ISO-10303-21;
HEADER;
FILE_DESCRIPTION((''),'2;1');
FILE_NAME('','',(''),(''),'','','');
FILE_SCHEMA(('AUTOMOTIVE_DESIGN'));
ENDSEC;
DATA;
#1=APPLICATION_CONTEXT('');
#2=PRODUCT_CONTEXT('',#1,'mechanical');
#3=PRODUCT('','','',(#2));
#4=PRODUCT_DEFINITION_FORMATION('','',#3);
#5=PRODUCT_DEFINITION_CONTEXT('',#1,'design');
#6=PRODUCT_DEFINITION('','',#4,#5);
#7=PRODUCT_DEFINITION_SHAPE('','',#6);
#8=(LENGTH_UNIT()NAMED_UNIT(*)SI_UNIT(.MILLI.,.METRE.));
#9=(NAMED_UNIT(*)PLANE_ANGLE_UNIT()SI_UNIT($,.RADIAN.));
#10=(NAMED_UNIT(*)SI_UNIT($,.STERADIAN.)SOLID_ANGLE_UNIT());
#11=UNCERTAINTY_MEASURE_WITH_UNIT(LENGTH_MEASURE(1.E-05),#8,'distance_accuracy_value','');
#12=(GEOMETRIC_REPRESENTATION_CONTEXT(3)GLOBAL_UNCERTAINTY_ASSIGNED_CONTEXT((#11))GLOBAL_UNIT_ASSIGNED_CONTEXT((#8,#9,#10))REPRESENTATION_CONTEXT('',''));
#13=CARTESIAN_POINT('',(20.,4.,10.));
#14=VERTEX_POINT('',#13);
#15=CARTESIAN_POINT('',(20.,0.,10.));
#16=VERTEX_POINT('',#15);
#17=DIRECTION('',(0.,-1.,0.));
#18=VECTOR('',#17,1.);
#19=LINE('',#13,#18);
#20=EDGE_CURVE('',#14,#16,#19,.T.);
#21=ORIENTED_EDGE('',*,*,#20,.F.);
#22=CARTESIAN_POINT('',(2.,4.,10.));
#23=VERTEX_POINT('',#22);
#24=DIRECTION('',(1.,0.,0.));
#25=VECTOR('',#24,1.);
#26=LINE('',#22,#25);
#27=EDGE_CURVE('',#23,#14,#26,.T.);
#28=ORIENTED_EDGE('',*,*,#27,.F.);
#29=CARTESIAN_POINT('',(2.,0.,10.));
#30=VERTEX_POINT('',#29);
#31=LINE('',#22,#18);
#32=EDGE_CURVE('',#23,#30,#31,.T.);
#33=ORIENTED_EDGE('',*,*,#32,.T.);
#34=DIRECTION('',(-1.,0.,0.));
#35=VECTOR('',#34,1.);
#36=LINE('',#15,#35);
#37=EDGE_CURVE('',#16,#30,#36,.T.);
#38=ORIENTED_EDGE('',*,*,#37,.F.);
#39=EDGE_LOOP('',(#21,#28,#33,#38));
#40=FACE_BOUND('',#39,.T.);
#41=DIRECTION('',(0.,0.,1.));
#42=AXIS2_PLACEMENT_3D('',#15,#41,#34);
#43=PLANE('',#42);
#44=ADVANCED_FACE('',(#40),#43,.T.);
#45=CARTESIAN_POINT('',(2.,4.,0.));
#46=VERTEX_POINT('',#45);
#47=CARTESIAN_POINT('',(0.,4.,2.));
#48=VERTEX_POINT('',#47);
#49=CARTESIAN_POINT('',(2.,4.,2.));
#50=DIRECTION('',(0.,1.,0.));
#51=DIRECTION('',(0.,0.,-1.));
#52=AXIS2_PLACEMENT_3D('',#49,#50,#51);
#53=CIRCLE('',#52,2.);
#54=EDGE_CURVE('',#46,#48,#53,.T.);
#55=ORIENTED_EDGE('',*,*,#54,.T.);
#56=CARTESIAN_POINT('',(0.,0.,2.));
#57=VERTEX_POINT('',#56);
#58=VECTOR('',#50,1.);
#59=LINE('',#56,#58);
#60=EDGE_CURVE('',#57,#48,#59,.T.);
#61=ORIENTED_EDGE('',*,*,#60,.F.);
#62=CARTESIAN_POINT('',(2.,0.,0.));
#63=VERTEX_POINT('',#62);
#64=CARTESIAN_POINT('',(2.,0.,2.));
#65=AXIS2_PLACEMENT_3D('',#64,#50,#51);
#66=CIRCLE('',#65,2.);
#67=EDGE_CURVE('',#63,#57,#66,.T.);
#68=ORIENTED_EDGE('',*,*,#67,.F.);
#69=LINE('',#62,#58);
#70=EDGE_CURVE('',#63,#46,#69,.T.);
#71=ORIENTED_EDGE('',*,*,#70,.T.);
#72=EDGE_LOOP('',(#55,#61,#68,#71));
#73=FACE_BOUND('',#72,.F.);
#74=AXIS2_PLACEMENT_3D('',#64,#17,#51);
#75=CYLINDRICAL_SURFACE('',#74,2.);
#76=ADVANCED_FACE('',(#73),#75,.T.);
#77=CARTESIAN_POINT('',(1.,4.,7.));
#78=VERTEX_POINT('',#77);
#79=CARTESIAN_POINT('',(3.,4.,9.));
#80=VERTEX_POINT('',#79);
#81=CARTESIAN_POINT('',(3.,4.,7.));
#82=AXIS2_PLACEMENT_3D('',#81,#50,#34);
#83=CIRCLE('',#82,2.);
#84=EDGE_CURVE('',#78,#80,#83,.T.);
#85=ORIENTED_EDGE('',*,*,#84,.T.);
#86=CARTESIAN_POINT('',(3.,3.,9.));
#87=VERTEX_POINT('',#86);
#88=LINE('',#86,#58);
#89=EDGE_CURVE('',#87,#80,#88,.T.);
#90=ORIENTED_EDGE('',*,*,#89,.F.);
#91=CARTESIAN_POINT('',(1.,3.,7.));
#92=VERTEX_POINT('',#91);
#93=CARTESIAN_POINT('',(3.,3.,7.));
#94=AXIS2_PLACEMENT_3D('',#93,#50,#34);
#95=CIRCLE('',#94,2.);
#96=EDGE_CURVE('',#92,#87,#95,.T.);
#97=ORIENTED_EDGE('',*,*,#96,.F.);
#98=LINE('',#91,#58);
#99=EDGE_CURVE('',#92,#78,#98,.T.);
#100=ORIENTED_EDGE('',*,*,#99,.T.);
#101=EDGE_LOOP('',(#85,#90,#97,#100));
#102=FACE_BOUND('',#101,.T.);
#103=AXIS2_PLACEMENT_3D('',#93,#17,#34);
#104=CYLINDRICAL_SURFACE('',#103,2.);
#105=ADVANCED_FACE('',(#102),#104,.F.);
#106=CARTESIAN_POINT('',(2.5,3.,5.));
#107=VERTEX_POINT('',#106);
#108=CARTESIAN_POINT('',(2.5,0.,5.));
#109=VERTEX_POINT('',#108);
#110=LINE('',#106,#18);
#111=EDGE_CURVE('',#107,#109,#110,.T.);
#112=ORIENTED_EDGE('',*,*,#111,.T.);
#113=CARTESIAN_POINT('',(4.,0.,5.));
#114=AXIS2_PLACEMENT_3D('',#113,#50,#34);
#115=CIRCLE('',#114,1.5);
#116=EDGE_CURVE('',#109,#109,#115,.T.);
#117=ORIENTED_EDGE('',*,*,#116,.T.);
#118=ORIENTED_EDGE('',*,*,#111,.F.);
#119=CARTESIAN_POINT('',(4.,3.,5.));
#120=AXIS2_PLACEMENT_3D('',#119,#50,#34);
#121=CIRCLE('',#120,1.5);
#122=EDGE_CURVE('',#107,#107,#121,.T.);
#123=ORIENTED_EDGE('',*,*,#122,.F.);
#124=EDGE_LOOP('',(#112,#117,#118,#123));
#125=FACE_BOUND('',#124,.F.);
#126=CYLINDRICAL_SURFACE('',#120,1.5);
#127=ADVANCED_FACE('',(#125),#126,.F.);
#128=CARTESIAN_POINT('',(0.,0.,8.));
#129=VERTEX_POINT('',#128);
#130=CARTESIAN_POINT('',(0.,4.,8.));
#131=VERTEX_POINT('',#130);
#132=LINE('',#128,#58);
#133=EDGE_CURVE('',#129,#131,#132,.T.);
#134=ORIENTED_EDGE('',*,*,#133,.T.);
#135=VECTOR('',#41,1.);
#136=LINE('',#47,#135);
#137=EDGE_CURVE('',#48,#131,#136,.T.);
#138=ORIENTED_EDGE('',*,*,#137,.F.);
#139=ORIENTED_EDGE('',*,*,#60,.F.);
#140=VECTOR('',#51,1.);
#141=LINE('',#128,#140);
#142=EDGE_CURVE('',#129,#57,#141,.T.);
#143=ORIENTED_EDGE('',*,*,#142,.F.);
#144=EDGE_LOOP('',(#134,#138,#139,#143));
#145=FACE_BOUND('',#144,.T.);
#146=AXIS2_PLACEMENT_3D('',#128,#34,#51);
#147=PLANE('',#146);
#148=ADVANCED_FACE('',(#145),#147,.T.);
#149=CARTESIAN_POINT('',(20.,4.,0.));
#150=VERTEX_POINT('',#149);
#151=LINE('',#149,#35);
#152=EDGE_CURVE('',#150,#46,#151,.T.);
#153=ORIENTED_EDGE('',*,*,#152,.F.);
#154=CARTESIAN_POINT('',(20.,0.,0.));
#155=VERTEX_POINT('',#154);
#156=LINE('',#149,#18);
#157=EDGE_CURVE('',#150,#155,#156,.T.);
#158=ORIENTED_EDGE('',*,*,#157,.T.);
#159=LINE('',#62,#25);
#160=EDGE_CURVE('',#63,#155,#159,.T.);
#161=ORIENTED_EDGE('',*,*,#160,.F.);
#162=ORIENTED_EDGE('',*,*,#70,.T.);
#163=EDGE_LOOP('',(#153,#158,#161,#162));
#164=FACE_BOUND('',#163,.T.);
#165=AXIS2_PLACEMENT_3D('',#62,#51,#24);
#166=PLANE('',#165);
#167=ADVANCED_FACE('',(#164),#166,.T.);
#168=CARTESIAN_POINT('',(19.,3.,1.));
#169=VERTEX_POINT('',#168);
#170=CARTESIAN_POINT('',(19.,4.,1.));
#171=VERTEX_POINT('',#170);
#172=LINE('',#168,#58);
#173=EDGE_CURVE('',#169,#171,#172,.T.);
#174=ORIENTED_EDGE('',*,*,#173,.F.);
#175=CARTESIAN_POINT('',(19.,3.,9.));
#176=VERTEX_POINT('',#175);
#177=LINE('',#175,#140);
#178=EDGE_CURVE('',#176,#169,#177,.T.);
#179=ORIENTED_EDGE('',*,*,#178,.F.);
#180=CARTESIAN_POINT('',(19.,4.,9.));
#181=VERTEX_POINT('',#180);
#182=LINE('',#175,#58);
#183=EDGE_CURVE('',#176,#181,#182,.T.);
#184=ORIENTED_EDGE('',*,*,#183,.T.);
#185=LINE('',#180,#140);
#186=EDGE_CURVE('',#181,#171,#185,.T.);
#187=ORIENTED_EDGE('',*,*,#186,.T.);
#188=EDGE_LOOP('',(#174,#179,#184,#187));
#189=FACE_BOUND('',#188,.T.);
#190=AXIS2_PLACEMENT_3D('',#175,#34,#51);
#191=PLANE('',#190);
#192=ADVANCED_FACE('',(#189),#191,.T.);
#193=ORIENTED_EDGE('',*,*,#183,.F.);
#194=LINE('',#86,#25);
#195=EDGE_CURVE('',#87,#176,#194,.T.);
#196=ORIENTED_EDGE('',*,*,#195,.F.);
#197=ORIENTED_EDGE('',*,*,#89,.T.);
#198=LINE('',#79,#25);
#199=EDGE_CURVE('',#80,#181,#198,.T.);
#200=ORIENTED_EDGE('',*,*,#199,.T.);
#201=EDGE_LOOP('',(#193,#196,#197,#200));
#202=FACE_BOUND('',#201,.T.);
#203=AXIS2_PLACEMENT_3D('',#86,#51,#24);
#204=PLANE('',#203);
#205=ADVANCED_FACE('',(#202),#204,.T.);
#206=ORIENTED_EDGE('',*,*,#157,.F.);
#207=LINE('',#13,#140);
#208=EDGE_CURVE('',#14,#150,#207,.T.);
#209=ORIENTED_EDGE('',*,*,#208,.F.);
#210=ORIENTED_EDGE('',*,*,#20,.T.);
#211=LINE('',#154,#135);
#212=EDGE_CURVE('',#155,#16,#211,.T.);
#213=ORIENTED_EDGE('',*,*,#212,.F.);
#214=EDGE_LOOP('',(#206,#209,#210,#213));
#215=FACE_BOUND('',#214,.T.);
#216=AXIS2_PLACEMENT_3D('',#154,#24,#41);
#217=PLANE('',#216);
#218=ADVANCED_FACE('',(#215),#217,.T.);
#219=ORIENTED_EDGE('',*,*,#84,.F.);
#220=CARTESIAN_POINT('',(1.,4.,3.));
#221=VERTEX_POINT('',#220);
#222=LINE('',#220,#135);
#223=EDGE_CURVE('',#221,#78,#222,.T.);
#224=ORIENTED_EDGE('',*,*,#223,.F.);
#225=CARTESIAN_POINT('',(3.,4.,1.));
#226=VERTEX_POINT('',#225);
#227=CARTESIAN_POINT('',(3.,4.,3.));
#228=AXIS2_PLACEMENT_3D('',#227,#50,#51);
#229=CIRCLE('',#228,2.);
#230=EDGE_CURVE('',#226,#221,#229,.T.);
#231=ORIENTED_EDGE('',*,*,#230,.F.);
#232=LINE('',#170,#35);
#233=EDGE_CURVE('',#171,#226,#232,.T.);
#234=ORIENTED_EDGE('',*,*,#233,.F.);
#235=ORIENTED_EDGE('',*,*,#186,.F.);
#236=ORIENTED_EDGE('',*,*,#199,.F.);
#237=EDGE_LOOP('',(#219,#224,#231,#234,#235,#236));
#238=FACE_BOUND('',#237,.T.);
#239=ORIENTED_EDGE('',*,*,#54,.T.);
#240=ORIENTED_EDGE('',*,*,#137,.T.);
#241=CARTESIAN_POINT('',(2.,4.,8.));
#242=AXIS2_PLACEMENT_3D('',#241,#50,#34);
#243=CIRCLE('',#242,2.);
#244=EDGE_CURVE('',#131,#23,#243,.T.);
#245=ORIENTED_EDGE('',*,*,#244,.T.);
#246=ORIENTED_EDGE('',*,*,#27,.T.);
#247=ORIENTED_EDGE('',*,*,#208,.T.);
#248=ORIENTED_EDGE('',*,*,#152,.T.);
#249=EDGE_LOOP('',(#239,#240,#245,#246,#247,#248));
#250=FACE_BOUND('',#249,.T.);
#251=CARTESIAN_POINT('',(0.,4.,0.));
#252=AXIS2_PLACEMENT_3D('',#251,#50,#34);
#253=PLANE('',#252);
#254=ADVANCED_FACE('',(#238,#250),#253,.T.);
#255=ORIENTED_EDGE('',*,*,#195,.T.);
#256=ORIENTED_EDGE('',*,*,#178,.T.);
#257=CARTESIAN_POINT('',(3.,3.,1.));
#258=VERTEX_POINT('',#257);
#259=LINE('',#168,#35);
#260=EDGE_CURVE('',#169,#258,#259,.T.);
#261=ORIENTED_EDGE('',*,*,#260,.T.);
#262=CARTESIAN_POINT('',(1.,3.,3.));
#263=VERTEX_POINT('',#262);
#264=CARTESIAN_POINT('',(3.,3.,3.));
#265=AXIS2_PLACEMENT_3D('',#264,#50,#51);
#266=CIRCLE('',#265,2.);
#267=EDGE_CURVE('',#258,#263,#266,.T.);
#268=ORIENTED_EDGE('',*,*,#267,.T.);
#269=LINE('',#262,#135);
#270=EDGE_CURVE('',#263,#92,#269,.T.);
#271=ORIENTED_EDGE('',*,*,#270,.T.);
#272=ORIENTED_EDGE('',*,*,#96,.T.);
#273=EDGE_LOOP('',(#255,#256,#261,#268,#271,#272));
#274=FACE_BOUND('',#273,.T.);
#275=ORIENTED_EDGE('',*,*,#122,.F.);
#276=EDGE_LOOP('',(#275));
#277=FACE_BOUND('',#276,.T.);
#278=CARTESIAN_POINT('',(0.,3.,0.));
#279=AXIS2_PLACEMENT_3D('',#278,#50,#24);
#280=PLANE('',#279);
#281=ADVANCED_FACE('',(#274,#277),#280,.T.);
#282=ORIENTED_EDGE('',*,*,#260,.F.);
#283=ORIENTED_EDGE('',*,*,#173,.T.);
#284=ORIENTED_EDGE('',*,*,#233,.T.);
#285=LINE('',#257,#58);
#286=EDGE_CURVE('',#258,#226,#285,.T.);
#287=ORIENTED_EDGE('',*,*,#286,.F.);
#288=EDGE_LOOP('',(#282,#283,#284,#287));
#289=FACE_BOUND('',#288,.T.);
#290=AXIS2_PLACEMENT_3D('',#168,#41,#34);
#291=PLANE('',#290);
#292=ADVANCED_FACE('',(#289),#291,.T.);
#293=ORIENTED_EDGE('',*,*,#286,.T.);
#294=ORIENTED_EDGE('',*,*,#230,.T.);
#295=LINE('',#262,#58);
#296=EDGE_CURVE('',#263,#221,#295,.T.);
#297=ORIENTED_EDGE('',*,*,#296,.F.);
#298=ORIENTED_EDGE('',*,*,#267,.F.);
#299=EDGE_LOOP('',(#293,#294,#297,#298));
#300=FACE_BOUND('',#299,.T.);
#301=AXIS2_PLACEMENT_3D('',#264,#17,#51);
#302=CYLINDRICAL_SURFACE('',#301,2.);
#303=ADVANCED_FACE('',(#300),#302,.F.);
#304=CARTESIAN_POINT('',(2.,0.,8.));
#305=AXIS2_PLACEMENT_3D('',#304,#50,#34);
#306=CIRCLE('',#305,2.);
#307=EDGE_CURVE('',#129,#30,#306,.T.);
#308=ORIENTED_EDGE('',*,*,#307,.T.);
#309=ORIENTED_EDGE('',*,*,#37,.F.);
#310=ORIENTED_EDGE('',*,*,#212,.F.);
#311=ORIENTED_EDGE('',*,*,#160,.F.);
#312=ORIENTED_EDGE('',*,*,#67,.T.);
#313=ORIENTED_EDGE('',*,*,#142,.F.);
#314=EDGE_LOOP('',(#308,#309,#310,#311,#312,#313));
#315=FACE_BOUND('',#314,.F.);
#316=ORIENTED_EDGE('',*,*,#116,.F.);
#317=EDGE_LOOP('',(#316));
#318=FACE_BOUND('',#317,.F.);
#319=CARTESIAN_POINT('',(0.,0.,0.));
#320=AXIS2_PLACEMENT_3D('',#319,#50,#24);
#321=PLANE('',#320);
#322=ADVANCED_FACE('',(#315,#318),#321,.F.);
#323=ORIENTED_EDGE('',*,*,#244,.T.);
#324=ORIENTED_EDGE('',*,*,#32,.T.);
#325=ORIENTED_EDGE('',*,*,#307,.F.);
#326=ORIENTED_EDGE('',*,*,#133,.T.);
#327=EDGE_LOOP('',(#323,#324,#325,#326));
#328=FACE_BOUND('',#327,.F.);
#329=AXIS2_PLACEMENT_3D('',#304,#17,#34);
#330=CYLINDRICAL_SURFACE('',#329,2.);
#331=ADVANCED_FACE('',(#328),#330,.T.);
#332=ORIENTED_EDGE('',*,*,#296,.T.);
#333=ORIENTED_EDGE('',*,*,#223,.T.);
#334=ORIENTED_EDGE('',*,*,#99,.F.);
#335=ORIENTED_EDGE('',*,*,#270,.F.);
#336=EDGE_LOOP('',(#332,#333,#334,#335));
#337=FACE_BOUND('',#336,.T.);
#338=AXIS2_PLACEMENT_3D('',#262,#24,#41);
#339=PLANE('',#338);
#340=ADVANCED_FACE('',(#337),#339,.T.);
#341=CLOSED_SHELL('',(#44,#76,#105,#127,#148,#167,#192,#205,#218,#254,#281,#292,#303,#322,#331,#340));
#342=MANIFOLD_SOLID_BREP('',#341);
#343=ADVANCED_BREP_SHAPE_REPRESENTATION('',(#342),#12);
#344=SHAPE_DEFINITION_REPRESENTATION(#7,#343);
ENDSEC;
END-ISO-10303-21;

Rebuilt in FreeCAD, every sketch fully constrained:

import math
import FreeCAD as App
import Part
import Sketcher
from FreeCAD import Vector
Q = App.Units.Quantity

doc = App.newDocument("Part")
body = doc.addObject("PartDesign::Body", "Body")

# Sketch on XZ plane
sketch1 = body.newObject("Sketcher::SketchObject", "Sketch")
sketch1.AttachmentSupport = (doc.getObject("XZ_Plane"), [""])
sketch1.MapMode = "FlatFace"
sketch1.addGeometry([
    Part.LineSegment(Vector(20, 0, 0), Vector(2, 0, 0)),  # 0
    Part.ArcOfCircle(Part.Circle(Vector(2, 2, 0), Vector(0, 0, 1), 2), math.radians(180), math.radians(270)),  # 1
    Part.LineSegment(Vector(0, 2, 0), Vector(0, 8, 0)),  # 2
    Part.ArcOfCircle(Part.Circle(Vector(2, 8, 0), Vector(0, 0, 1), 2), math.radians(90), math.radians(180)),  # 3
    Part.LineSegment(Vector(2, 10, 0), Vector(20, 10, 0)),  # 4
    Part.LineSegment(Vector(20, 10, 0), Vector(20, 0, 0)),  # 5
], False)
sketch1.addConstraint([
    Sketcher.Constraint("Tangent", 0, 2, 1, 2),
    Sketcher.Constraint("Tangent", 1, 1, 2, 1),
    Sketcher.Constraint("Tangent", 2, 2, 3, 2),
    Sketcher.Constraint("Tangent", 3, 1, 4, 1),
    Sketcher.Constraint("Coincident", 4, 2, 5, 1),
    Sketcher.Constraint("Coincident", 5, 2, 0, 1),
    Sketcher.Constraint("Horizontal", 0),
    Sketcher.Constraint("Vertical", 2),
    Sketcher.Constraint("Horizontal", 4),
    Sketcher.Constraint("Vertical", 5),
    Sketcher.Constraint("Equal", 1, 3),
    Sketcher.Constraint("PointOnObject", 0, 2, -1),
    Sketcher.Constraint("PointOnObject", 1, 1, -2),
    Sketcher.Constraint("Radius", 1, Q("2 mm")),
    Sketcher.Constraint("DistanceY", 5, 2, 5, 1, Q("10 mm")),
    Sketcher.Constraint("DistanceX", -1, 1, 4, 2, Q("20 mm")),
])
pad1 = body.newObject("PartDesign::Pad", "Pad")
pad1.Profile = sketch1
pad1.Length = 3
pad1.Reversed = True

# Sketch on XZ plane
sketch2 = body.newObject("Sketcher::SketchObject", "Sketch001")
sketch2.AttachmentSupport = (doc.getObject("XZ_Plane"), [""])
sketch2.MapMode = "FlatFace"
sketch2.AttachmentOffset = App.Placement(Vector(0, 0, -3), App.Rotation())
sketch2.addGeometry([
    Part.ArcOfCircle(Part.Circle(Vector(2, 8, 0), Vector(0, 0, 1), 2), math.radians(90), math.radians(180)),  # 0
    Part.LineSegment(Vector(2, 10, 0), Vector(20, 10, 0)),  # 1
    Part.LineSegment(Vector(20, 10, 0), Vector(20, 0, 0)),  # 2
    Part.LineSegment(Vector(20, 0, 0), Vector(2, 0, 0)),  # 3
    Part.ArcOfCircle(Part.Circle(Vector(2, 2, 0), Vector(0, 0, 1), 2), math.radians(180), math.radians(270)),  # 4
    Part.LineSegment(Vector(0, 2, 0), Vector(0, 8, 0)),  # 5
    Part.LineSegment(Vector(19, 9, 0), Vector(3, 9, 0)),  # 6
    Part.ArcOfCircle(Part.Circle(Vector(3, 7, 0), Vector(0, 0, 1), 2), math.radians(90), math.radians(180)),  # 7
    Part.LineSegment(Vector(1, 7, 0), Vector(1, 3, 0)),  # 8
    Part.ArcOfCircle(Part.Circle(Vector(3, 3, 0), Vector(0, 0, 1), 2), math.radians(180), math.radians(270)),  # 9
    Part.LineSegment(Vector(3, 1, 0), Vector(19, 1, 0)),  # 10
    Part.LineSegment(Vector(19, 1, 0), Vector(19, 9, 0)),  # 11
], False)
sketch2.addConstraint([
    Sketcher.Constraint("Tangent", 0, 1, 1, 1),
    Sketcher.Constraint("Coincident", 1, 2, 2, 1),
    Sketcher.Constraint("Coincident", 2, 2, 3, 1),
    Sketcher.Constraint("Tangent", 3, 2, 4, 2),
    Sketcher.Constraint("Tangent", 4, 1, 5, 1),
    Sketcher.Constraint("Tangent", 5, 2, 0, 2),
    Sketcher.Constraint("Tangent", 6, 2, 7, 1),
    Sketcher.Constraint("Tangent", 7, 2, 8, 1),
    Sketcher.Constraint("Tangent", 8, 2, 9, 1),
    Sketcher.Constraint("Tangent", 9, 2, 10, 1),
    Sketcher.Constraint("Coincident", 10, 2, 11, 1),
    Sketcher.Constraint("Coincident", 11, 2, 6, 1),
    Sketcher.Constraint("Horizontal", 1),
    Sketcher.Constraint("Vertical", 2),
    Sketcher.Constraint("Horizontal", 3),
    Sketcher.Constraint("Vertical", 5),
    Sketcher.Constraint("Horizontal", 6),
    Sketcher.Constraint("Vertical", 8),
    Sketcher.Constraint("Horizontal", 10),
    Sketcher.Constraint("Vertical", 11),
    Sketcher.Constraint("Equal", 0, 4),
    Sketcher.Constraint("Equal", 4, 7),
    Sketcher.Constraint("Equal", 7, 9),
    Sketcher.Constraint("PointOnObject", 2, 2, -1),
    Sketcher.Constraint("PointOnObject", 4, 1, -2),
    Sketcher.Constraint("Radius", 0, Q("2 mm")),
    Sketcher.Constraint("DistanceX", -1, 1, 7, 3, Q("3 mm")),
    Sketcher.Constraint("DistanceY", -1, 1, 9, 3, Q("3 mm")),
    Sketcher.Constraint("DistanceY", 7, 3, 0, 1, Q("3 mm")),
    Sketcher.Constraint("DistanceX", 1, 1, 1, 2, Q("18 mm")),
    Sketcher.Constraint("DistanceX", 6, 2, 6, 1, Q("16 mm")),
    Sketcher.Constraint("DistanceY", 2, 2, 2, 1, Q("10 mm")),
])
pad2 = body.newObject("PartDesign::Pad", "Pad001")
pad2.Profile = sketch2
pad2.Length = 1
pad2.Reversed = True

# Sketch on XZ plane
sketch3 = body.newObject("Sketcher::SketchObject", "Sketch002")
sketch3.AttachmentSupport = (doc.getObject("XZ_Plane"), [""])
sketch3.MapMode = "FlatFace"
sketch3.AttachmentOffset = App.Placement(Vector(0, 0, -3), App.Rotation())
sketch3.addGeometry(Part.Circle(Vector(4, 5, 0), Vector(0, 0, 1), 1.5), False)
sketch3.addConstraint([
    Sketcher.Constraint("Diameter", 0, Q("3 mm")),
    Sketcher.Constraint("DistanceX", -1, 1, 0, 3, Q("4 mm")),
    Sketcher.Constraint("DistanceY", -1, 1, 0, 3, Q("5 mm")),
])
pocket1 = body.newObject("PartDesign::Pocket", "Pocket")
pocket1.Profile = sketch3
pocket1.Length = 3
pocket1.Reversed = True

doc.recompute()
